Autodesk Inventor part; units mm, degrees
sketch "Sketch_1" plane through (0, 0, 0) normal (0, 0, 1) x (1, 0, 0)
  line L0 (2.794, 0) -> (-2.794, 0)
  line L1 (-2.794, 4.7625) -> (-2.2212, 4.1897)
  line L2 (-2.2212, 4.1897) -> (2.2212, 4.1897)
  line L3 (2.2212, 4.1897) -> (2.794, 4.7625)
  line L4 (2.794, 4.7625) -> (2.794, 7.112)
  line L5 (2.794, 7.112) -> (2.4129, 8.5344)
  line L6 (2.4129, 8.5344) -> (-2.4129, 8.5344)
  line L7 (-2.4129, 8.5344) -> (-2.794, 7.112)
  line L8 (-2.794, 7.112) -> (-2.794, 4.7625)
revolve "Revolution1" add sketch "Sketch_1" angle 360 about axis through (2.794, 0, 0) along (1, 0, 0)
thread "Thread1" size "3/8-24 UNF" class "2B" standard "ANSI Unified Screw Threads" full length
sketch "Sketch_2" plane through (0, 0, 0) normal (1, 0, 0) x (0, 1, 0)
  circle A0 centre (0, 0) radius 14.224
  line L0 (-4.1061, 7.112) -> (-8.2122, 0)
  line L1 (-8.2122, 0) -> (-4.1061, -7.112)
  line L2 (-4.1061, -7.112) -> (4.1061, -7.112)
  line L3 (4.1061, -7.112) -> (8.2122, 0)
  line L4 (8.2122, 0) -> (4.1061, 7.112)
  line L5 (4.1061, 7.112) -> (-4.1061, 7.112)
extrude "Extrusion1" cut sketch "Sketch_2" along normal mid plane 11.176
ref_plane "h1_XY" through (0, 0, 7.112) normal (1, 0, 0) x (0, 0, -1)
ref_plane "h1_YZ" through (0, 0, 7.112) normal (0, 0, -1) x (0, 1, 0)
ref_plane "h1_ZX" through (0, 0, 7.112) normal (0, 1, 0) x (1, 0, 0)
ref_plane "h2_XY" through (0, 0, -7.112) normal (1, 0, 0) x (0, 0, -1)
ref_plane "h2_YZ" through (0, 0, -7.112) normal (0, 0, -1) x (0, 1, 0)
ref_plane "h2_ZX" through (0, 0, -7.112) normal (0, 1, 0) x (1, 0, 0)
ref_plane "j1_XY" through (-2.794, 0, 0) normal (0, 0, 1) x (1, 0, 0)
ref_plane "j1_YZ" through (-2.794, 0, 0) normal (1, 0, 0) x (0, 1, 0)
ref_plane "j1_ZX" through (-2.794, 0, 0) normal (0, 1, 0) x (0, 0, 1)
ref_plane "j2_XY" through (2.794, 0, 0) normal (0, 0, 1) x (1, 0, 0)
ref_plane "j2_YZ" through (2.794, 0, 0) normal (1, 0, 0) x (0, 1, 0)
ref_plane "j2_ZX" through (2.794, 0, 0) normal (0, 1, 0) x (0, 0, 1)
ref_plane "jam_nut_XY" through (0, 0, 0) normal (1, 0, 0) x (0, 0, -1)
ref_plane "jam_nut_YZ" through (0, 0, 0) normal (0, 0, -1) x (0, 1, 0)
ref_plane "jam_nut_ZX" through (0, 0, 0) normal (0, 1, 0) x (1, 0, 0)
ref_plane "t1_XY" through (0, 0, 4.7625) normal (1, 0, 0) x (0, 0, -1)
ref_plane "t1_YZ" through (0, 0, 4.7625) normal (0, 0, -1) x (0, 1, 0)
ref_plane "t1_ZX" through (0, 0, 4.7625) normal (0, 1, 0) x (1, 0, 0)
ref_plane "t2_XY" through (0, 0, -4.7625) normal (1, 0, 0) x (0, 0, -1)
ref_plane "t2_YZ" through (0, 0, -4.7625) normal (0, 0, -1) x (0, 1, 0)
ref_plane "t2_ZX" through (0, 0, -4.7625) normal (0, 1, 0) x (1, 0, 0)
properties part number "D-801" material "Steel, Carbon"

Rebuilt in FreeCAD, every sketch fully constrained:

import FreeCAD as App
import Part
import Sketcher

V = App.Vector
Q = App.Units.Quantity

doc = App.newDocument("Part")
body = doc.addObject("PartDesign::Body", "Body")

# Sketch on XY plane
sketch1 = doc.addObject("Sketcher::SketchObject", "Sketch")
body.addObject(sketch1)
sketch1.AttachmentSupport = (doc.XY_Plane, [""])
sketch1.MapMode = "FlatFace"
sketch1.addGeometry([
    Part.LineSegment(V(-2.8, 7.1, 0), V(-2.8, 4.8, 0)),  # 0
    Part.LineSegment(V(-2.8, 4.8, 0), V(-2.2, 4.2, 0)),  # 1
    Part.LineSegment(V(-2.2, 4.2, 0), V(2.2, 4.2, 0)),  # 2
    Part.LineSegment(V(2.2, 4.2, 0), V(2.8, 4.8, 0)),  # 3
    Part.LineSegment(V(2.8, 4.8, 0), V(2.8, 7.1, 0)),  # 4
    Part.LineSegment(V(2.8, 7.1, 0), V(2.4, 8.5, 0)),  # 5
    Part.LineSegment(V(2.4, 8.5, 0), V(-2.4, 8.5, 0)),  # 6
    Part.LineSegment(V(-2.4, 8.5, 0), V(-2.8, 7.1, 0)),  # 7
], False)
sketch1.addConstraint([
    Sketcher.Constraint("Coincident", 0, 2, 1, 1),
    Sketcher.Constraint("Coincident", 1, 2, 2, 1),
    Sketcher.Constraint("Coincident", 2, 2, 3, 1),
    Sketcher.Constraint("Coincident", 3, 2, 4, 1),
    Sketcher.Constraint("Coincident", 4, 2, 5, 1),
    Sketcher.Constraint("Coincident", 5, 2, 6, 1),
    Sketcher.Constraint("Coincident", 6, 2, 7, 1),
    Sketcher.Constraint("Coincident", 7, 2, 0, 1),
    Sketcher.Constraint("Vertical", 0),
    Sketcher.Constraint("Horizontal", 2),
    Sketcher.Constraint("Vertical", 4),
    Sketcher.Constraint("Horizontal", 6),
    Sketcher.Constraint("Symmetric", 0, 2, 3, 2, -2),
    Sketcher.Constraint("Perpendicular", 1, 3),
    Sketcher.Constraint("Horizontal", 4, 2, 7, 2),
    Sketcher.Constraint("Equal", 1, 3),
    Sketcher.Constraint("Equal", 5, 7),
    Sketcher.Constraint("Angle", 5, Q("104.9988 deg")),
    Sketcher.Constraint("DistanceX", 6, 2, 6, 1, Q("0.19 in")),
    Sketcher.Constraint("DistanceX", 0, 2, -1, 1, Q("0.11 in")),
    Sketcher.Constraint("DistanceY", -1, 1, 4, 2, Q("0.28 in")),
    Sketcher.Constraint("DistanceX", 2, 1, 2, 2, Q("0.1749 in")),
    Sketcher.Constraint("DistanceY", 0, 2, 0, 1, Q("0.0925 in")),
])
revolution = doc.addObject("PartDesign::Revolution", "Revolution")
body.addObject(revolution)
revolution.Profile = sketch1
revolution.ReferenceAxis = (sketch1, ["H_Axis"])
revolution.Angle = 360

# Sketch on YZ plane
sketch2 = doc.addObject("Sketcher::SketchObject", "Sketch001")
body.addObject(sketch2)
sketch2.AttachmentSupport = (doc.YZ_Plane, [""])
sketch2.MapMode = "FlatFace"
sketch2.addGeometry([
    Part.Circle(V(0, 0, 0), V(0, 0, 1), 14),  # 0
    Part.LineSegment(V(-8, 0, 0), V(-4, 7, 0)),  # 1
    Part.LineSegment(V(-4, 7, 0), V(4, 7, 0)),  # 2
    Part.LineSegment(V(4, 7, 0), V(8, 0, 0)),  # 3
    Part.LineSegment(V(8, 0, 0), V(4, -7, 0)),  # 4
    Part.LineSegment(V(4, -7, 0), V(-4, -7, 0)),  # 5
    Part.LineSegment(V(-4, -7, 0), V(-8, 0, 0)),  # 6
], False)
sketch2.addConstraint([
    Sketcher.Constraint("Coincident", 1, 2, 2, 1),
    Sketcher.Constraint("Coincident", 2, 2, 3, 1),
    Sketcher.Constraint("Coincident", 3, 2, 4, 1),
    Sketcher.Constraint("Coincident", 4, 2, 5, 1),
    Sketcher.Constraint("Coincident", 5, 2, 6, 1),
    Sketcher.Constraint("Coincident", 6, 2, 1, 1),
    Sketcher.Constraint("Horizontal", 2),
    Sketcher.Constraint("Horizontal", 5),
    Sketcher.Constraint("Coincident", 0, 3, -1, 1),
    Sketcher.Constraint("Symmetric", 1, 2, 4, 2, -1, 1),
    Sketcher.Constraint("Symmetric", 3, 2, 6, 2, -1, 1),
    Sketcher.Constraint("PointOnObject", 3, 2, -1),
    Sketcher.Constraint("Parallel", 3, 6),
    Sketcher.Constraint("Vertical", 2, 2, 4, 2),
    Sketcher.Constraint("Diameter", 0, Q("1.12 in")),
    Sketcher.Constraint("Angle", 1, Q("60 deg")),
    Sketcher.Constraint("DistanceY", -1, 1, 1, 2, Q("0.28 in")),
    Sketcher.Constraint("DistanceX", 2, 1, 2, 2, Q("8.2122 mm")),
])
pocket1 = doc.addObject("PartDesign::Pocket", "Pocket")
body.addObject(pocket1)
pocket1.Profile = sketch2
pocket1.Length = Q("0.44 in")
pocket1.Midplane = True

doc.recompute()
